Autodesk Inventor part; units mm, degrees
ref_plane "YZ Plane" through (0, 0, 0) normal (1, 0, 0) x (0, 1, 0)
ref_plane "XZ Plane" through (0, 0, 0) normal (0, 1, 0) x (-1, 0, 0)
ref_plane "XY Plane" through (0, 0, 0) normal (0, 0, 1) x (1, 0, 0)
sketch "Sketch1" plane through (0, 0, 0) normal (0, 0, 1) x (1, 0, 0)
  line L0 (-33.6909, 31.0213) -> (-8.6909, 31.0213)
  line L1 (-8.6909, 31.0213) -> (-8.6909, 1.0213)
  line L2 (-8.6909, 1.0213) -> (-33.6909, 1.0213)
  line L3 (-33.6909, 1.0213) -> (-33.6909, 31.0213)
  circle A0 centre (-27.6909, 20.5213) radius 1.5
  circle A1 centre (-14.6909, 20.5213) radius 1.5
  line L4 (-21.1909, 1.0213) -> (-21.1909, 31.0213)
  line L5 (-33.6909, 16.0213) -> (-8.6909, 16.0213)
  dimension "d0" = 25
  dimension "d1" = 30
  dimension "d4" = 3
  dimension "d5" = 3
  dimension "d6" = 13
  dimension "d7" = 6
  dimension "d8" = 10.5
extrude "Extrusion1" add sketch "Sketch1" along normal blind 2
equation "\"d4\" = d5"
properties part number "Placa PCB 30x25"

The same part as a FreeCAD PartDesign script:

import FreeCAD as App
import Part
import Sketcher
Q = App.Units.Quantity

doc = App.newDocument("Part")
params = doc.addObject("Spreadsheet::Sheet", "Params")
for row, (alias, value) in enumerate([
    ("sketch1_diameter", "3 mm"),
    ("sketch1_width", "25 mm"),
    ("sketch1_height", "30 mm"),
    ("pad1_length", "2 mm"),
], start=1):
    params.set(f"A{row}", alias)
    params.set(f"B{row}", "=" + value)
    params.setAlias(f"B{row}", alias)

body = doc.addObject("PartDesign::Body", "Body")

sketch1 = body.newObject("Sketcher::SketchObject", "Sketch")
sketch1.AttachmentSupport = (doc.getObject("XY_Plane"), [""])
sketch1.MapMode = "FlatFace"
sketch1.addGeometry([
    Part.LineSegment(App.Vector(-33.7, 31, 0), App.Vector(-33.7, 1, 0)),
    Part.LineSegment(App.Vector(-33.7, 1, 0), App.Vector(-8.7, 1, 0)),
    Part.LineSegment(App.Vector(-8.7, 1, 0), App.Vector(-8.7, 31, 0)),
    Part.LineSegment(App.Vector(-8.7, 31, 0), App.Vector(-33.7, 31, 0)),
    Part.Circle(App.Vector(-27.7, 20.5, 0), App.Vector(0, 0, 1), 1.5),
    Part.Circle(App.Vector(-14.7, 20.5, 0), App.Vector(0, 0, 1), 1.5),
], False)
sketch1.addConstraint([
    Sketcher.Constraint("Coincident", 0, 2, 1, 1),
    Sketcher.Constraint("Coincident", 1, 2, 2, 1),
    Sketcher.Constraint("Coincident", 2, 2, 3, 1),
    Sketcher.Constraint("Coincident", 3, 2, 0, 1),
    Sketcher.Constraint("Vertical", 0),
    Sketcher.Constraint("Horizontal", 1),
    Sketcher.Constraint("Vertical", 2),
    Sketcher.Constraint("Horizontal", 3),
    Sketcher.Constraint("Equal", 4, 5),
    Sketcher.Constraint("Horizontal", 4, 3, 5, 3),
    Sketcher.Constraint("Diameter", 4, Q("3 mm")),
    Sketcher.Constraint("DistanceX", 1, 1, 1, 2, Q("25 mm")),
    Sketcher.Constraint("DistanceY", 0, 2, 0, 1, Q("30 mm")),
    Sketcher.Constraint("DistanceX", 4, 3, 5, 3, Q("13 mm")),
    Sketcher.Constraint("DistanceX", 0, 2, 4, 3, Q("6 mm")),
    Sketcher.Constraint("DistanceY", 5, 3, 2, 2, Q("10.5 mm")),
    Sketcher.Constraint("DistanceX", 4, 3, -1, 1, Q("27.691 mm")),
    Sketcher.Constraint("DistanceY", -1, 1, 4, 3, Q("20.5213 mm")),
])
sketch1.setExpression("Constraints[10]", "Params.sketch1_diameter")
sketch1.setExpression("Constraints[11]", "Params.sketch1_width")
sketch1.setExpression("Constraints[12]", "Params.sketch1_height")
pad1 = body.newObject("PartDesign::Pad", "Pad")
pad1.Profile = sketch1
pad1.setExpression("Length", "Params.pad1_length")

doc.recompute()
